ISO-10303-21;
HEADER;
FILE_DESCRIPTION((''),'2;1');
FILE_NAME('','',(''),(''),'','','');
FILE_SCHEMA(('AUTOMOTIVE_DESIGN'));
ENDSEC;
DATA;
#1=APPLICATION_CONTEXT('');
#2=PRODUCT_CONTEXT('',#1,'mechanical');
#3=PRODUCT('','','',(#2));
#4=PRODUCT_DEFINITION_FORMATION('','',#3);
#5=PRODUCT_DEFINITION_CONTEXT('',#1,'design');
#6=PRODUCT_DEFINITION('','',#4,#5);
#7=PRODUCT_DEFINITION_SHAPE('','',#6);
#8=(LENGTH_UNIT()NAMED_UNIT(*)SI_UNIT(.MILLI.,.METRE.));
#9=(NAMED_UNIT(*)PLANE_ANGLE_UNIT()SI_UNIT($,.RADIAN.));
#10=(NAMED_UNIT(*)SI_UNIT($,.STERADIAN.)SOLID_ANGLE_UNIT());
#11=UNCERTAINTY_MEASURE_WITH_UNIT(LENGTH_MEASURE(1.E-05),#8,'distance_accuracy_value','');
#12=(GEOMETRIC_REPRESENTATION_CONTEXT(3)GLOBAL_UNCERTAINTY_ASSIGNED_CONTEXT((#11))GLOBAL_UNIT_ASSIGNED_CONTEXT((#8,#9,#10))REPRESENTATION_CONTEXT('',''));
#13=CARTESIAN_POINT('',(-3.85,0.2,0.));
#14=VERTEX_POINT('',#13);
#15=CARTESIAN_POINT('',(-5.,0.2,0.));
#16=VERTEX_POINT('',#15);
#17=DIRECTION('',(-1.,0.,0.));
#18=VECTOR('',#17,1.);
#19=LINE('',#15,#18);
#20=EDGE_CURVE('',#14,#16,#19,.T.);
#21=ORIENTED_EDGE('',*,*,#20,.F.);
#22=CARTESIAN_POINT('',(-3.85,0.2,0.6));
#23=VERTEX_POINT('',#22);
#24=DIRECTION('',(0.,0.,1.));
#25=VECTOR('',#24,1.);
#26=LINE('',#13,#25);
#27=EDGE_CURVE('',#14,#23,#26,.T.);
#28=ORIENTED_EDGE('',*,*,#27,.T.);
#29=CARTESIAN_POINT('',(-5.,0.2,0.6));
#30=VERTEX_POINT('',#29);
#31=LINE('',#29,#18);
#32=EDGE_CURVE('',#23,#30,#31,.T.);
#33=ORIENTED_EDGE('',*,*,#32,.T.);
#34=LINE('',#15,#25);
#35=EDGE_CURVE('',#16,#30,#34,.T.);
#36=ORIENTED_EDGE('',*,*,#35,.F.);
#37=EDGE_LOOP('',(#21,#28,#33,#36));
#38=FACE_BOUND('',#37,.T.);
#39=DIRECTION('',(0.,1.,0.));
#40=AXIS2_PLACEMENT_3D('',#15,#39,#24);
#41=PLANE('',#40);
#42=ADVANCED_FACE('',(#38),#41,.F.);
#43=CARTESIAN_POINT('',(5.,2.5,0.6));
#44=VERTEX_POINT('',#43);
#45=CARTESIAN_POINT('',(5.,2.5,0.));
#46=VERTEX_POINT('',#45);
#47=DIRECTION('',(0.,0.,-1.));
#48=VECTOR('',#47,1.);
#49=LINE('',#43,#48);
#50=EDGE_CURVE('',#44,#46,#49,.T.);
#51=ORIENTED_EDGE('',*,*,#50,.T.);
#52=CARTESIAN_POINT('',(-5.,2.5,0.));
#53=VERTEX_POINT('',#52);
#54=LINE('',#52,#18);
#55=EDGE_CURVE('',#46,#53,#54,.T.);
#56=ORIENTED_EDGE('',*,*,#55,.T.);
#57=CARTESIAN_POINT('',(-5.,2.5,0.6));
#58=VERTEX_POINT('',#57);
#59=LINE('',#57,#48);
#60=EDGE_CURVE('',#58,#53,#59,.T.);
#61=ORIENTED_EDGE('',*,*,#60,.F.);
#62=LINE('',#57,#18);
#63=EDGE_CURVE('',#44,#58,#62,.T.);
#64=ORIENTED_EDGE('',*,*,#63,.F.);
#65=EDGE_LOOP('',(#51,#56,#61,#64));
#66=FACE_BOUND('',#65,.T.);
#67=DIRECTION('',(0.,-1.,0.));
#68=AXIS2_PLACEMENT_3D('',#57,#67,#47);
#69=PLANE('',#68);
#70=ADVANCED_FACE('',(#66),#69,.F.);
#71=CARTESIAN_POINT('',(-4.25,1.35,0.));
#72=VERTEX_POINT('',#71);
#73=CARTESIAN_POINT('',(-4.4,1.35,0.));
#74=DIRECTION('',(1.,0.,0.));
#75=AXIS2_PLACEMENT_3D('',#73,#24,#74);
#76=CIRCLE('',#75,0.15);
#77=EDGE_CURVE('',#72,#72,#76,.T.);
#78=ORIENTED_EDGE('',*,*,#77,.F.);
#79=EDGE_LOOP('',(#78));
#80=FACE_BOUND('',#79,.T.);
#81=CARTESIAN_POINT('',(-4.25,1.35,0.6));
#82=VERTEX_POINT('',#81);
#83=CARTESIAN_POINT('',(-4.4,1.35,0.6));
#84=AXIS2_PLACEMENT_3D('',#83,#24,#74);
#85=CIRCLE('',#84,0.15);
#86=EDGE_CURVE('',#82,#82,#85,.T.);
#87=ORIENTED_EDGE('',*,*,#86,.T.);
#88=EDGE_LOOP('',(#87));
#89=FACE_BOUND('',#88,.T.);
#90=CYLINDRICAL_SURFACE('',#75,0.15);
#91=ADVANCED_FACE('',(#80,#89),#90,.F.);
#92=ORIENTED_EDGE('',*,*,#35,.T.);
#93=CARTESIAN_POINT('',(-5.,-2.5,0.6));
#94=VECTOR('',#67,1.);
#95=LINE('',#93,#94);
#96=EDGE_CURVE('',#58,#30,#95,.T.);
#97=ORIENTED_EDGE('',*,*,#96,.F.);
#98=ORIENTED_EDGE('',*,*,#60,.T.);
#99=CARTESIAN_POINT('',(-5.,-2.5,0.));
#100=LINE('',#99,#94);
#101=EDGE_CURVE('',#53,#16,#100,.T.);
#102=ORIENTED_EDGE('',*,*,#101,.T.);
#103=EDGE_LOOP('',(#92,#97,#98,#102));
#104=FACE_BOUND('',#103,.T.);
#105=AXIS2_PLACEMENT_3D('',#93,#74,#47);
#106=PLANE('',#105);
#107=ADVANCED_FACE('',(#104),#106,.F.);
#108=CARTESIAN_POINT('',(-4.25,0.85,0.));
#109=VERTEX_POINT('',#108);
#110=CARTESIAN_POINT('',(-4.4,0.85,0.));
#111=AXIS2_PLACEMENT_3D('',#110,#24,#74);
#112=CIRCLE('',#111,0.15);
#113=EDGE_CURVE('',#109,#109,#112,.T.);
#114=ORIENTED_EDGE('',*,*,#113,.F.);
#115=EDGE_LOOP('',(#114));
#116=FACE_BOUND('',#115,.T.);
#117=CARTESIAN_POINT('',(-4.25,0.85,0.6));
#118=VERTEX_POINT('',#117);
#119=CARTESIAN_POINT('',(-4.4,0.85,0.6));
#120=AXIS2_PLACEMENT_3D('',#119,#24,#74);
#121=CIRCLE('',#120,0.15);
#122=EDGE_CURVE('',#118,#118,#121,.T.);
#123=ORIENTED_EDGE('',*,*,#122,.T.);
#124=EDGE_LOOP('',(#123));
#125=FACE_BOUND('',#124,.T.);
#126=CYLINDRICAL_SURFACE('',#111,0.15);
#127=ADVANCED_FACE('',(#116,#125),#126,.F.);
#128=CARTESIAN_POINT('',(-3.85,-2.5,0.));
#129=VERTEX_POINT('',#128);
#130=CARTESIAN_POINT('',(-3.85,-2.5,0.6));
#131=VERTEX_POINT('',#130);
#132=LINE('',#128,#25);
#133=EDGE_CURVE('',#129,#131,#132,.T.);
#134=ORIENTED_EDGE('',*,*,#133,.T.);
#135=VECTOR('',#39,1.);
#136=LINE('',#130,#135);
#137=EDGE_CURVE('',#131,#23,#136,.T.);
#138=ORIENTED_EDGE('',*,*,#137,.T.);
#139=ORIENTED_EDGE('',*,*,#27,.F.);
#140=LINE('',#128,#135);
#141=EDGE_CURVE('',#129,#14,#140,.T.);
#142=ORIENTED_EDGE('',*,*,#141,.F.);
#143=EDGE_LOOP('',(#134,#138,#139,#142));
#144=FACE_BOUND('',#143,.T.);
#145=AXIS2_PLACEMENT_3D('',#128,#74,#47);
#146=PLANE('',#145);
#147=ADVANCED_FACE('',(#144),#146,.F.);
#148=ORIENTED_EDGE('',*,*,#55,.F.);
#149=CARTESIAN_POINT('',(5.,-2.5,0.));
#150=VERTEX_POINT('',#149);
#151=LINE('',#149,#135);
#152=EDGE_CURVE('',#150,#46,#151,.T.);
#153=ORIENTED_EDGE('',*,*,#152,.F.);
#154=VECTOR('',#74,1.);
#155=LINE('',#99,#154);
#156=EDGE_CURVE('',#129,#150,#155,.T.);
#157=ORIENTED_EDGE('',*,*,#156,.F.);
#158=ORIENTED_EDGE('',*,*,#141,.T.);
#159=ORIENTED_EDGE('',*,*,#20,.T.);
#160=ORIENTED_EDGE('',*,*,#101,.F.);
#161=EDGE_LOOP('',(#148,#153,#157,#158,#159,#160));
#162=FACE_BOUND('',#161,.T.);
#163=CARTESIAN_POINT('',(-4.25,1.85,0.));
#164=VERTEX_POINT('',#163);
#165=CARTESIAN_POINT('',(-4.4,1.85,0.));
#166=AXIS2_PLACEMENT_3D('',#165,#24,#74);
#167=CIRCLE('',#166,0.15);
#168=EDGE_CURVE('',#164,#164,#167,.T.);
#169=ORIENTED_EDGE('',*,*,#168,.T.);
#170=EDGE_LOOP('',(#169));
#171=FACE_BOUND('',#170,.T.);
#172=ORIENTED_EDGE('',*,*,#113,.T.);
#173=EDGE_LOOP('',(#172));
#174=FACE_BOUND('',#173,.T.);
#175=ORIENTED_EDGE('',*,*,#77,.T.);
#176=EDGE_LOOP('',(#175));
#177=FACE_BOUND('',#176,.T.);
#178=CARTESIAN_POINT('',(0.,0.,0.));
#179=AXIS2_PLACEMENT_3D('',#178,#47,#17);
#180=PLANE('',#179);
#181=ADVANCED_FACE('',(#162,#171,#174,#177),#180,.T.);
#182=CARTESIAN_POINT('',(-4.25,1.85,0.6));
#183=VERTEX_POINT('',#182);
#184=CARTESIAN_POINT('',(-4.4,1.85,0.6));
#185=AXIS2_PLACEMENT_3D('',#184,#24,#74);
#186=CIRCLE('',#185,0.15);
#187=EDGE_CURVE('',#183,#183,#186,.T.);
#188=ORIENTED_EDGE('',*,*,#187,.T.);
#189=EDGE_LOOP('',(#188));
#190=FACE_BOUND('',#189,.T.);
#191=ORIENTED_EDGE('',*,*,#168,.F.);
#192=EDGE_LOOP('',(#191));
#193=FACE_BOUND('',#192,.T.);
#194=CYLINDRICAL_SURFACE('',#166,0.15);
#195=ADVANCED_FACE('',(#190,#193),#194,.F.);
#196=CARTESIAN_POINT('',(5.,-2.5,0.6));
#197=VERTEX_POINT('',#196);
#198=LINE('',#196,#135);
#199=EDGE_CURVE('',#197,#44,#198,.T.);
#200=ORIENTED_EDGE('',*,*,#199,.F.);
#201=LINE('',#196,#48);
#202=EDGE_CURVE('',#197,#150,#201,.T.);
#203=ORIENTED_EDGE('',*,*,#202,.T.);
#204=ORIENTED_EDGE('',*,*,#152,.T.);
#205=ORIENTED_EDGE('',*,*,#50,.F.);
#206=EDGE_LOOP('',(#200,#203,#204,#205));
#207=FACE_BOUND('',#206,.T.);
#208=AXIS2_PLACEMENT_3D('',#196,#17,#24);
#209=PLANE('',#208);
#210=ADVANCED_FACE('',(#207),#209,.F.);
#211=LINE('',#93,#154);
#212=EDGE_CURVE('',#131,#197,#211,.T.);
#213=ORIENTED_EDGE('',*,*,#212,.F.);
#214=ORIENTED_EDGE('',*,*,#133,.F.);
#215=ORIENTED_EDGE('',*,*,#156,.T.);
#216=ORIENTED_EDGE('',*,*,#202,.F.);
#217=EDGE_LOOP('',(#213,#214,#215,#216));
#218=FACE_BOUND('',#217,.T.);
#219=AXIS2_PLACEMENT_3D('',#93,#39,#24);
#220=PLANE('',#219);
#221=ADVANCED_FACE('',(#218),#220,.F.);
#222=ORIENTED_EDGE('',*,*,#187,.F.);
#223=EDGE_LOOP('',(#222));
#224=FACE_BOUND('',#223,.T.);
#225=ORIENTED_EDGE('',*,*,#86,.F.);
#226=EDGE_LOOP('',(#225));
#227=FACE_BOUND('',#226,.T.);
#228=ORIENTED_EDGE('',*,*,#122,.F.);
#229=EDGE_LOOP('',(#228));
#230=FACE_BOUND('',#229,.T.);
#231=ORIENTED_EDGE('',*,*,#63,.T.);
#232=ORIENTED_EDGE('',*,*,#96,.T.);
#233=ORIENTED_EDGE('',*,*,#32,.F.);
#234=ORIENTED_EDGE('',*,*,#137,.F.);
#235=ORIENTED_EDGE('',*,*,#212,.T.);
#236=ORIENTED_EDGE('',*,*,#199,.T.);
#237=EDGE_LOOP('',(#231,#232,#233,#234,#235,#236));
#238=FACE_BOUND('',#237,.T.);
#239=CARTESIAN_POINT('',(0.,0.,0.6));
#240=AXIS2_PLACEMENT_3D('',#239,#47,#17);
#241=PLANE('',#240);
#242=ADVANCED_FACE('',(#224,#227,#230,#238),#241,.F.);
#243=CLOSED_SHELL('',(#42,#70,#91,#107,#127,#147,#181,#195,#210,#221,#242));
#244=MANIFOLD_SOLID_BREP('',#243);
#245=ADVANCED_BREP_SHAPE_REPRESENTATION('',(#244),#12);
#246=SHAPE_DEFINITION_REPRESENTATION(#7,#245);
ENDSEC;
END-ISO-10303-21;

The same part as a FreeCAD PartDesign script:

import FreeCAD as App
import Part
import Sketcher

V = App.Vector
Q = App.Units.Quantity


def add_polygon(sketch, points):
    """Adds a closed chain of lines whose ends are joined by coincident constraints."""
    first, n = sketch.GeometryCount, len(points)
    for a, b in zip(points, points[1:] + points[:1]):
        sketch.addGeometry(Part.LineSegment(App.Vector(*a, 0), App.Vector(*b, 0)), False)
    for i in range(n):
        sketch.addConstraint(Sketcher.Constraint("Coincident", first + i, 2, first + (i + 1) % n, 1))

doc = App.newDocument("Part")
body = doc.addObject("PartDesign::Body", "Body")

sketch1 = body.newObject("Sketcher::SketchObject", "Sketch")
sketch1.AttachmentSupport = (doc.getObject("XY_Plane"), [""])
sketch1.MapMode = "FlatFace"
add_polygon(sketch1, [(-5, 2), (-5, -2), (5, -2), (5, 2)])
sketch1.addConstraint([
    Sketcher.Constraint("Vertical", 0),
    Sketcher.Constraint("Horizontal", 1),
    Sketcher.Constraint("Vertical", 2),
    Sketcher.Constraint("Horizontal", 3),
    Sketcher.Constraint("Symmetric", 0, 2, 2, 2, -1, 1),
    Sketcher.Constraint("DistanceX", 1, 1, 1, 2, Q("10 mm")),
    Sketcher.Constraint("DistanceY", 0, 2, 0, 1, Q("5 mm")),
])
pad1 = body.newObject("PartDesign::Pad", "Pad")
pad1.Profile = sketch1
pad1.Length = 0.6

sketch2 = body.newObject("Sketcher::SketchObject", "Sketch001")
sketch2.AttachmentSupport = (doc.getObject("XY_Plane"), [""])
sketch2.MapMode = "FlatFace"
sketch2.AttachmentOffset = App.Placement(V(0, 0, 0.6), App.Rotation())
add_polygon(sketch2, [(-5, 0.2), (-5, -2.5), (-3.9, -2.5), (-3.9, 0.2)])
sketch2.addConstraint([
    Sketcher.Constraint("Vertical", 0),
    Sketcher.Constraint("Horizontal", 1),
    Sketcher.Constraint("Vertical", 2),
    Sketcher.Constraint("Horizontal", 3),
    Sketcher.Constraint("DistanceY", 0, 2, 0, 1, Q("2.7 mm")),
    Sketcher.Constraint("DistanceX", 0, 2, -1, 1, Q("5 mm")),
    Sketcher.Constraint("DistanceX", 1, 1, 1, 2, Q("1.15 mm")),
    Sketcher.Constraint("DistanceY", 0, 2, -1, 1, Q("2.5 mm")),
])
pocket1 = body.newObject("PartDesign::Pocket", "Pocket")
pocket1.Profile = sketch2
pocket1.Type = "ThroughAll"

sketch3 = body.newObject("Sketcher::SketchObject", "Sketch002")
sketch3.AttachmentSupport = (doc.getObject("XY_Plane"), [""])
sketch3.MapMode = "FlatFace"
sketch3.AttachmentOffset = App.Placement(V(0, 0, 0.6), App.Rotation())
sketch3.addGeometry([
    Part.Circle(V(-4.4, 1.85, 0), V(0, 0, 1), 0.15),
    Part.Circle(V(-4.4, 1.35, 0), V(0, 0, 1), 0.15),
    Part.Circle(V(-4.4, 0.85, 0), V(0, 0, 1), 0.15),
], False)
sketch3.addConstraint([
    Sketcher.Constraint("Equal", 0, 1),
    Sketcher.Constraint("Equal", 1, 2),
    Sketcher.Constraint("Vertical", 0, 3, 1, 3),
    Sketcher.Constraint("Vertical", 1, 3, 2, 3),
    Sketcher.Constraint("Diameter", 0, Q("0.3 mm")),
    Sketcher.Constraint("DistanceY", 2, 3, 0, 3, Q("1 mm")),
    Sketcher.Constraint("DistanceX", 0, 3, -1, 1, Q("4.4 mm")),
    Sketcher.Constraint("DistanceY", 1, 3, 0, 3, Q("0.5 mm")),
    Sketcher.Constraint("DistanceY", -1, 1, 0, 3, Q("1.85 mm")),
])
pocket2 = body.newObject("PartDesign::Pocket", "Pocket001")
pocket2.Profile = sketch3
pocket2.Type = "ThroughAll"

doc.recompute()
